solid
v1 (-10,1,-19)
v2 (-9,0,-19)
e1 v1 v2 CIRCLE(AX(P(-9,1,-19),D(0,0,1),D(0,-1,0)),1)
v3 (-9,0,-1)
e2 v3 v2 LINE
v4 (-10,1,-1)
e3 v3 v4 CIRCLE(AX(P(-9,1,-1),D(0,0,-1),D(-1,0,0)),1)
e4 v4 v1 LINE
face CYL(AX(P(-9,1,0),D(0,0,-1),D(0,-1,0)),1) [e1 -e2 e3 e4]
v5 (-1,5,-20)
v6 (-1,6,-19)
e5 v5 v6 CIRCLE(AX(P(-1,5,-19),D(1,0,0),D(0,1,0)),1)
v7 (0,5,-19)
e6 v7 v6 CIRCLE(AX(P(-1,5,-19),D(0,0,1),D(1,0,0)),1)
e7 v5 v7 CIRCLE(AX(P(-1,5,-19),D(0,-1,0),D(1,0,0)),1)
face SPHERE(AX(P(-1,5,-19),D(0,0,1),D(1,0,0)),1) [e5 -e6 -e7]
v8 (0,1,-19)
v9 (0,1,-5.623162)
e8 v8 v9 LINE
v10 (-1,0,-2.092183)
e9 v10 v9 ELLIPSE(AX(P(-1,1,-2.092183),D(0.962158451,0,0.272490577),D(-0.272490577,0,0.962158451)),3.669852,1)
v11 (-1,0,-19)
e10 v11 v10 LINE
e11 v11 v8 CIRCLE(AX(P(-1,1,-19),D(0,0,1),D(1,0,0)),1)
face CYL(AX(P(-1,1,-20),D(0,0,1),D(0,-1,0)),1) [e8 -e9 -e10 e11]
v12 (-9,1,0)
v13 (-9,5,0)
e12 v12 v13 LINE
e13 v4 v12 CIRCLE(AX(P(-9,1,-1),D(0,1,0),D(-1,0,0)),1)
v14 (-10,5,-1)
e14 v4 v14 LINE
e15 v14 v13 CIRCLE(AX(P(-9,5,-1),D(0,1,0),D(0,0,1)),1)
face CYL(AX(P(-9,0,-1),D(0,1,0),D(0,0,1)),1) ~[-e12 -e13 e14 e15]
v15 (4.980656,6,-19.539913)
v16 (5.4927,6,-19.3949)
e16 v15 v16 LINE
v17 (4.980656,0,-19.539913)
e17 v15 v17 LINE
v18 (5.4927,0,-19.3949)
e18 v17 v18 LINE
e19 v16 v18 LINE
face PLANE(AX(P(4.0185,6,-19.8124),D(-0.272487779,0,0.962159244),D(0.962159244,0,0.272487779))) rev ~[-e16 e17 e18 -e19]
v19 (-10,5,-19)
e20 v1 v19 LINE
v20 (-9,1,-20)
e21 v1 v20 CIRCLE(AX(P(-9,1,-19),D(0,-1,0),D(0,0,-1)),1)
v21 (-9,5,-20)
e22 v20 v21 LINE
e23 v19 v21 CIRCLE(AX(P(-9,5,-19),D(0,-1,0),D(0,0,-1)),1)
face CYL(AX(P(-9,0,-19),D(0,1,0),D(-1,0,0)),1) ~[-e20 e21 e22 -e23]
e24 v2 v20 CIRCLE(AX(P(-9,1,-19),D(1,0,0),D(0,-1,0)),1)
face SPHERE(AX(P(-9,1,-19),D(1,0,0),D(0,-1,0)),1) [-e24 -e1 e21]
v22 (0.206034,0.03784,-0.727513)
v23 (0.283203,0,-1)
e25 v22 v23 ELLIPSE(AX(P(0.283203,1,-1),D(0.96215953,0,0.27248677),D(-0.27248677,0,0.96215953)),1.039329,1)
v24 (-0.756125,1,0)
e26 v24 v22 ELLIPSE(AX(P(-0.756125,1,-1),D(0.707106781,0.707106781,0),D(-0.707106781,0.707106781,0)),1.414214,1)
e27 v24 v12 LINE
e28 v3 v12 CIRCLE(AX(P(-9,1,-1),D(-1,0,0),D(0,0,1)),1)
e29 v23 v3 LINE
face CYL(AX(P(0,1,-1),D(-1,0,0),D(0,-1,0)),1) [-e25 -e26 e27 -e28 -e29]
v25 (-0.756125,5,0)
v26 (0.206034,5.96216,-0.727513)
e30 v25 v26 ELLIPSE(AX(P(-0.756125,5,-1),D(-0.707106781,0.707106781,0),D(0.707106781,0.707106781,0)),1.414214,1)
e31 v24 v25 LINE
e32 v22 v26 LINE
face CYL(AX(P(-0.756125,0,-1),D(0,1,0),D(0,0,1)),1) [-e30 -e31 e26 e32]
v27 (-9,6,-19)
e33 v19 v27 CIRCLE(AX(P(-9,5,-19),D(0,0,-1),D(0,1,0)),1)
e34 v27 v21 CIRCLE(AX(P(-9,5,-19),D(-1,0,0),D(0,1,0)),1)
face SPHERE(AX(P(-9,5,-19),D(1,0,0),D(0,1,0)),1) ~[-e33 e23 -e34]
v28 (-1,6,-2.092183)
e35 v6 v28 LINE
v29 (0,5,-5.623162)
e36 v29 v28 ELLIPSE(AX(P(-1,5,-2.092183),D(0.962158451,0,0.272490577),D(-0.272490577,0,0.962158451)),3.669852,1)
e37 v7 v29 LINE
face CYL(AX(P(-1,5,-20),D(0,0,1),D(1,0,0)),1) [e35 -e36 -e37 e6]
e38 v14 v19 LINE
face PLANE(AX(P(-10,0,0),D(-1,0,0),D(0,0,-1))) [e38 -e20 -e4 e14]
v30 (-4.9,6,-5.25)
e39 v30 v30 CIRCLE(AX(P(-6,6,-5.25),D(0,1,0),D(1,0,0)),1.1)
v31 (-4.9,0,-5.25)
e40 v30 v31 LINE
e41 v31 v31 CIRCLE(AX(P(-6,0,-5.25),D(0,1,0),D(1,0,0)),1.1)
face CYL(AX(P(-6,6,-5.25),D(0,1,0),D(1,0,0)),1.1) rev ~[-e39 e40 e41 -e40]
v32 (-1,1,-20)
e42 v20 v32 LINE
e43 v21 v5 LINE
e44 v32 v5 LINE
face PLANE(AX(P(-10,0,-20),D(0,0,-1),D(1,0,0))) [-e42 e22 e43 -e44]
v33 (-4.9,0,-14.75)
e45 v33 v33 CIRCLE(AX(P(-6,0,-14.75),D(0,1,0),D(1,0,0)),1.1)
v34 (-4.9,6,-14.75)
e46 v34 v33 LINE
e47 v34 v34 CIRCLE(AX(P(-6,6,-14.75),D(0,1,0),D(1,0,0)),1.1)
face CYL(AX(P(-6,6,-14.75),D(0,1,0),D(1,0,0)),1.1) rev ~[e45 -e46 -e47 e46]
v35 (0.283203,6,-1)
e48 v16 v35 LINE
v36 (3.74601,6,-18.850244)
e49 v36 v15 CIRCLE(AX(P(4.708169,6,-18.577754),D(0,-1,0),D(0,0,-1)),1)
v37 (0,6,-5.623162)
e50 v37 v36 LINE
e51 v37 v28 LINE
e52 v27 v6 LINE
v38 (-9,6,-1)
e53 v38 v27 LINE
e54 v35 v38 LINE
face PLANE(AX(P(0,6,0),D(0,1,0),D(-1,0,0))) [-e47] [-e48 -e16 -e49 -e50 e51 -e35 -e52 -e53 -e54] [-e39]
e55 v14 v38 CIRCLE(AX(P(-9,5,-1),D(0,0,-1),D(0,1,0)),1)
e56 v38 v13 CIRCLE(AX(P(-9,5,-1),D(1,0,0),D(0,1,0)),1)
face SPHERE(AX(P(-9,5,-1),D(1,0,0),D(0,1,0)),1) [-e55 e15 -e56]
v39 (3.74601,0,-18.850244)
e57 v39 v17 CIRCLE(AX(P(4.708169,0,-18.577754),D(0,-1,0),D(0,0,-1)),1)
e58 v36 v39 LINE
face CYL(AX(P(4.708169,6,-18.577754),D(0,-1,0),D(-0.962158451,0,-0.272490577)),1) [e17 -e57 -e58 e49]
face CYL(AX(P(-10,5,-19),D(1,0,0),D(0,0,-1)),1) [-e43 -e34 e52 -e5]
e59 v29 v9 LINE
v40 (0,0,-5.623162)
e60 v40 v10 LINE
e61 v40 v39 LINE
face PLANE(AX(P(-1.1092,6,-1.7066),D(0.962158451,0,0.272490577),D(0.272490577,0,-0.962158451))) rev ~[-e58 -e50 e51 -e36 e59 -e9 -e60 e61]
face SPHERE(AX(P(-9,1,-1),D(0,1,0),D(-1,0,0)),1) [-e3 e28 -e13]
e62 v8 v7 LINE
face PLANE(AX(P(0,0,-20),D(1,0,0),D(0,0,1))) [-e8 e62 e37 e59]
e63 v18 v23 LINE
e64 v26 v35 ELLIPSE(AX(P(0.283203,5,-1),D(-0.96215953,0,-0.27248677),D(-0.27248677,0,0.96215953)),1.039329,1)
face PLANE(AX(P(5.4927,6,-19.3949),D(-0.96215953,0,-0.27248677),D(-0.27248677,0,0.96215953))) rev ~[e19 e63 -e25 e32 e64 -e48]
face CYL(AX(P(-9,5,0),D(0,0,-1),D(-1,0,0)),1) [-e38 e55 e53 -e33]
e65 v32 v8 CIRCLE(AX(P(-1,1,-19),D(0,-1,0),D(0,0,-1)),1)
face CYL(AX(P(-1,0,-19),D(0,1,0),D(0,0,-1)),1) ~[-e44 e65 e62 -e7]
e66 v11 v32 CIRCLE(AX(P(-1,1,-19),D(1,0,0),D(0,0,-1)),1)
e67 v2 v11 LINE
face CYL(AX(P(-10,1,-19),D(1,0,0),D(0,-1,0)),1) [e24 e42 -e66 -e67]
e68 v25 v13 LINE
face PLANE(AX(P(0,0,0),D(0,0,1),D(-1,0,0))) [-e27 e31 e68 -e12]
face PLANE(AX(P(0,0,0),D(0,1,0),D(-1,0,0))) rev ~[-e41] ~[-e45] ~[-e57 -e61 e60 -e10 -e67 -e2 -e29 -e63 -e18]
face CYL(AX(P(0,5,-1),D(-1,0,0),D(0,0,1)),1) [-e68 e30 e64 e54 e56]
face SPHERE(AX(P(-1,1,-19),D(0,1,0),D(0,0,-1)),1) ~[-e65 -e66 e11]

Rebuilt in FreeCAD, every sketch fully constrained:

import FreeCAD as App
import Part
import Sketcher

V = App.Vector


def edges_at(feature, points):
    """Names of the edges that pass closest to the given points."""
    edges = feature.Shape.Edges
    near = lambda p: min(range(len(edges)), key=lambda i: edges[i].distToShape(Part.Vertex(*p))[0])
    return sorted({f"Edge{near(p) + 1}" for p in points})


def add_polygon(sketch, points):
    """Adds a closed chain of lines whose ends are joined by coincident constraints."""
    first, n = sketch.GeometryCount, len(points)
    for a, b in zip(points, points[1:] + points[:1]):
        sketch.addGeometry(Part.LineSegment(App.Vector(*a, 0), App.Vector(*b, 0)), False)
    for i in range(n):
        sketch.addConstraint(Sketcher.Constraint("Coincident", first + i, 2, first + (i + 1) % n, 1))

doc = App.newDocument("Part")
params = doc.addObject("Spreadsheet::Sheet", "Params")
for row, (alias, value) in enumerate([
    ("sketch1_width", "10 mm"),
    ("sketch1_height", "20 mm"),
    ("pad1_length", "6 mm"),
    ("sketch2_diameter", "2.2 mm"),
    ("pocket1_length", "6 mm"),
    ("pad2_length", "6 mm"),
    ("fillet_radius", "1 mm"),
], start=1):
    params.set(f"A{row}", alias)
    params.set(f"B{row}", "=" + value)
    params.setAlias(f"B{row}", alias)

body = doc.addObject("PartDesign::Body", "Body")

# Sketch on XZ plane
sketch1 = body.newObject("Sketcher::SketchObject", "Sketch")
sketch1.AttachmentSupport = (doc.getObject("XZ_Plane"), [""])
sketch1.MapMode = "FlatFace"
add_polygon(sketch1, [(-10, 0), (0, 0), (0, -20), (-10, -20)])  # lines 0-3
sketch1.addConstraint(Sketcher.Constraint("Horizontal", 0))
sketch1.addConstraint(Sketcher.Constraint("Vertical", 1))
sketch1.addConstraint(Sketcher.Constraint("Horizontal", 2))
sketch1.addConstraint(Sketcher.Constraint("Vertical", 3))
sketch1.addConstraint(Sketcher.Constraint("Coincident", 0, 2, -1, 1))
sketch1.addConstraint(Sketcher.Constraint("DistanceX", 0, 1, 0, 2, 10.0))
sketch1.addConstraint(Sketcher.Constraint("DistanceY", 1, 2, 1, 1, 20.0))
sketch1.setExpression("Constraints[9]", "Params.sketch1_width")
sketch1.setExpression("Constraints[10]", "Params.sketch1_height")
pad1 = body.newObject("PartDesign::Pad", "Pad")
pad1.Profile = sketch1
pad1.setExpression("Length", "Params.pad1_length")
pad1.Reversed = True

# Sketch on XZ plane
sketch2 = body.newObject("Sketcher::SketchObject", "Sketch001")
sketch2.AttachmentSupport = (doc.getObject("XZ_Plane"), [""])
sketch2.MapMode = "FlatFace"
sketch2.AttachmentOffset = App.Placement(V(0, 0, -6), App.Rotation())
sketch2.addGeometry(Part.Circle(V(-6, -5.2, 0), V(0, 0, 1), 1.1), False)
sketch2.addGeometry(Part.Circle(V(-6, -14.8, 0), V(0, 0, 1), 1.1), False)
sketch2.addConstraint(Sketcher.Constraint("Equal", 0, 1))
sketch2.addConstraint(Sketcher.Constraint("Vertical", 0, 3, 1, 3))
sketch2.addConstraint(Sketcher.Constraint("Diameter", 0, 2.2))
sketch2.addConstraint(Sketcher.Constraint("DistanceY", 1, 3, 0, 3, 9.5))
sketch2.addConstraint(Sketcher.Constraint("DistanceY", 0, 3, -1, 1, 5.25))
sketch2.addConstraint(Sketcher.Constraint("DistanceX", 0, 3, -1, 1, 6.0))
sketch2.setExpression("Constraints[2]", "Params.sketch2_diameter")
pocket1 = body.newObject("PartDesign::Pocket", "Pocket")
pocket1.Profile = sketch2
pocket1.setExpression("Length", "Params.pocket1_length")
pocket1.Reversed = True

# Sketch on XZ plane
sketch3 = body.newObject("Sketcher::SketchObject", "Sketch002")
sketch3.AttachmentSupport = (doc.getObject("XZ_Plane"), [""])
sketch3.MapMode = "FlatFace"
sketch3.AttachmentOffset = App.Placement(V(0, 0, -6), App.Rotation())
add_polygon(sketch3, [(4, -19.8), (-1.1, -1.7), (0, 0), (5.5, -19.4)])  # lines 0-3
sketch3.addConstraint(Sketcher.Constraint("Coincident", 1, 2, -1, 1))
sketch3.addConstraint(Sketcher.Constraint("Parallel", 0, 2))
sketch3.addConstraint(Sketcher.Constraint("Perpendicular", 2, 3))
sketch3.addConstraint(Sketcher.Constraint("Distance", 0, 18.818))
sketch3.addConstraint(Sketcher.Constraint("DistanceY", 2, 2, -1, 1, 19.395))
sketch3.addConstraint(Sketcher.Constraint("DistanceX", 0, 2, 2, 2, 6.602))
sketch3.addConstraint(Sketcher.Constraint("Distance", 1, 2.0354))
pad2 = body.newObject("PartDesign::Pad", "Pad001")
pad2.Profile = sketch3
pad2.setExpression("Length", "Params.pad2_length")
doc.recompute()

fillet = body.newObject("PartDesign::Fillet", "Fillet")
fillet.Base = (pad2, edges_at(pad2, [
    (0, 6, -12.812),
    (0, 3, -20),
    (-5, 6, -20),
    (-5, 0, -20),
    (-5, 6, 0),
    (-10, 6, -10),
    (-10, 3, 0),
    (-10, 0, -10),
    (-10, 3, -20),
    (-5, 0, 0),
    (0, 3, 0),
    (0, 0, -12.812),
    (4.019, 3, -19.812),
]))
fillet.setExpression("Radius", "Params.fillet_radius")

doc.recompute()
